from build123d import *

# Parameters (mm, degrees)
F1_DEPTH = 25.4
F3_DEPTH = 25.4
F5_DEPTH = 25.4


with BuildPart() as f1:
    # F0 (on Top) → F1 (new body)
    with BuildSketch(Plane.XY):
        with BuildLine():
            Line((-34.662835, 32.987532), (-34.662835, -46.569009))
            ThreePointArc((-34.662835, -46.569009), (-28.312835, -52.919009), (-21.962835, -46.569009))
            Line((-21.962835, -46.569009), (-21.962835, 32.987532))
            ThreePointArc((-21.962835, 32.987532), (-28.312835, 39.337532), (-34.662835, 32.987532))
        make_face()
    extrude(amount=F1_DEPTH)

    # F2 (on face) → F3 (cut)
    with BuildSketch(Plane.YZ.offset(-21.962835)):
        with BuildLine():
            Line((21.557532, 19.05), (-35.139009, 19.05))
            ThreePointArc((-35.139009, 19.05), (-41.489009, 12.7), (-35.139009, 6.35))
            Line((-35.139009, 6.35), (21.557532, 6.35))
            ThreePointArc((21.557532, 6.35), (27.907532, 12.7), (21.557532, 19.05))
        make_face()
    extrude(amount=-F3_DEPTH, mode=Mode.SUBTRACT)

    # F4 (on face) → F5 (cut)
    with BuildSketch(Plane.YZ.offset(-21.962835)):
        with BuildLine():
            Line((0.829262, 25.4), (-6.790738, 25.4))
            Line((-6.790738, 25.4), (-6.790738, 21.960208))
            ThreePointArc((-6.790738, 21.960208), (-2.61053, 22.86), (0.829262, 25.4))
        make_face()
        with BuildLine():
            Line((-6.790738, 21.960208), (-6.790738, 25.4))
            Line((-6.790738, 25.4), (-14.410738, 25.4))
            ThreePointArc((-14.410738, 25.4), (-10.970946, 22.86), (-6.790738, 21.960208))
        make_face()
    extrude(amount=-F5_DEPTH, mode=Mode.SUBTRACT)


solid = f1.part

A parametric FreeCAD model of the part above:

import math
import FreeCAD as App
import Part
import Sketcher

V = App.Vector
Q = App.Units.Quantity

doc = App.newDocument("Part")
body = doc.addObject("PartDesign::Body", "Body")

sketch1 = body.newObject("Sketcher::SketchObject", "Sketch")
sketch1.AttachmentSupport = (doc.getObject("XY_Plane"), [""])
sketch1.MapMode = "FlatFace"
sketch1.addGeometry(Part.LineSegment(V(-35, 33, 0), V(-35, -47, 0)), False)
sketch1.addGeometry(Part.ArcOfCircle(Part.Circle(V(-28, -47, 0), V(0, 0, 1), 6), math.radians(180), math.radians(360)), False)
sketch1.addGeometry(Part.LineSegment(V(-22, -47, 0), V(-22, 33, 0)), False)
sketch1.addGeometry(Part.ArcOfCircle(Part.Circle(V(-28, 33, 0), V(0, 0, 1), 6), math.radians(0), math.radians(180)), False)
sketch1.addConstraint(Sketcher.Constraint("Tangent", 0, 2, 1, 1))
sketch1.addConstraint(Sketcher.Constraint("Tangent", 1, 2, 2, 1))
sketch1.addConstraint(Sketcher.Constraint("Tangent", 2, 2, 3, 1))
sketch1.addConstraint(Sketcher.Constraint("Tangent", 3, 2, 0, 1))
sketch1.addConstraint(Sketcher.Constraint("Vertical", 0))
sketch1.addConstraint(Sketcher.Constraint("Vertical", 2))
sketch1.addConstraint(Sketcher.Constraint("Radius", 1, Q("0.25 in")))
sketch1.addConstraint(Sketcher.Constraint("DistanceY", 0, 2, 0, 1, 79.556541))
sketch1.addConstraint(Sketcher.Constraint("DistanceY", 1, 3, -1, 1, 46.569009))
sketch1.addConstraint(Sketcher.Constraint("DistanceX", 1, 3, -1, 1, 28.312835))
pad1 = body.newObject("PartDesign::Pad", "Pad")
pad1.Profile = sketch1
pad1.Length = Q("1 in")

sketch2 = body.newObject("Sketcher::SketchObject", "Sketch001")
sketch2.AttachmentSupport = (doc.getObject("YZ_Plane"), [""])
sketch2.MapMode = "FlatFace"
sketch2.AttachmentOffset = App.Placement(V(0, 0, -21.962835), App.Rotation())
sketch2.addGeometry(Part.LineSegment(V(22, 19, 0), V(-35, 19, 0)), False)
sketch2.addGeometry(Part.ArcOfCircle(Part.Circle(V(-35, 13, 0), V(0, 0, 1), 6), math.radians(90), math.radians(270)), False)
sketch2.addGeometry(Part.LineSegment(V(-35, 6, 0), V(22, 6, 0)), False)
sketch2.addGeometry(Part.ArcOfCircle(Part.Circle(V(22, 13, 0), V(0, 0, 1), 6), math.radians(-90), math.radians(90)), False)
sketch2.addConstraint(Sketcher.Constraint("Tangent", 0, 2, 1, 1))
sketch2.addConstraint(Sketcher.Constraint("Tangent", 1, 2, 2, 1))
sketch2.addConstraint(Sketcher.Constraint("Tangent", 2, 2, 3, 1))
sketch2.addConstraint(Sketcher.Constraint("Tangent", 3, 2, 0, 1))
sketch2.addConstraint(Sketcher.Constraint("Horizontal", 0))
sketch2.addConstraint(Sketcher.Constraint("Horizontal", 2))
sketch2.addConstraint(Sketcher.Constraint("Radius", 1, Q("0.25 in")))
sketch2.addConstraint(Sketcher.Constraint("DistanceY", -1, 1, 1, 3, Q("0.5 in")))
sketch2.addConstraint(Sketcher.Constraint("DistanceX", 0, 2, 0, 1, 56.696541))
sketch2.addConstraint(Sketcher.Constraint("DistanceX", 1, 3, -1, 1, 35.139009))
pocket1 = body.newObject("PartDesign::Pocket", "Pocket")
pocket1.Profile = sketch2
pocket1.Length = Q("1 in")

sketch3 = body.newObject("Sketcher::SketchObject", "Sketch002")
sketch3.AttachmentSupport = (doc.getObject("YZ_Plane"), [""])
sketch3.MapMode = "FlatFace"
sketch3.AttachmentOffset = App.Placement(V(0, 0, -21.962835), App.Rotation())
sketch3.addGeometry(Part.LineSegment(V(1, 25, 0), V(-14, 25, 0)), False)
sketch3.addGeometry(Part.ArcOfCircle(Part.Circle(V(-7, 32, 0), V(0, 0, 1), 10), math.radians(-139), math.radians(-90)), False)
sketch3.addGeometry(Part.ArcOfCircle(Part.Circle(V(-7, 32, 0), V(0, 0, 1), 10), math.radians(-90), math.radians(-41)), False)
sketch3.addConstraint(Sketcher.Constraint("Coincident", 0, 2, 1, 1))
sketch3.addConstraint(Sketcher.Constraint("Tangent", 1, 2, 2, 1))
sketch3.addConstraint(Sketcher.Constraint("Coincident", 2, 2, 0, 1))
sketch3.addConstraint(Sketcher.Constraint("Horizontal", 0))
sketch3.addConstraint(Sketcher.Constraint("Equal", 1, 2))
sketch3.addConstraint(Sketcher.Constraint("Vertical", 2, 3, 1, 2))
sketch3.addConstraint(Sketcher.Constraint("Radius", 1, Q("0.4000001 in")))
sketch3.addConstraint(Sketcher.Constraint("DistanceX", 0, 2, 0, 1, Q("0.6 in")))
sketch3.addConstraint(Sketcher.Constraint("DistanceY", -1, 1, 0, 2, Q("1 in")))
sketch3.addConstraint(Sketcher.Constraint("DistanceX", 2, 3, -1, 1, 6.79074))
pocket2 = body.newObject("PartDesign::Pocket", "Pocket001")
pocket2.Profile = sketch3
pocket2.Length = Q("1 in")

doc.recompute()
